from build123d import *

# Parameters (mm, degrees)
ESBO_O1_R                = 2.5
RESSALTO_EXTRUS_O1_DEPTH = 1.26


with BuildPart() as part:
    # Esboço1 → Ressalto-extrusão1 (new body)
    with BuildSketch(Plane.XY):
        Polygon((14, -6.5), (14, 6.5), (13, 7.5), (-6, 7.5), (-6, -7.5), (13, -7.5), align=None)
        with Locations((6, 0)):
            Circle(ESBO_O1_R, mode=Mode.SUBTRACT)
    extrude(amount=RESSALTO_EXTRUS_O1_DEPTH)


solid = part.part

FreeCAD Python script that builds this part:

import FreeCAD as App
import Part
import Sketcher
from FreeCAD import Vector
Q = App.Units.Quantity

doc = App.newDocument("Part")
body = doc.addObject("PartDesign::Body", "Body")

# Sketch on XY plane
sketch1 = doc.addObject("Sketcher::SketchObject", "Sketch")
body.addObject(sketch1)
sketch1.AttachmentSupport = (doc.XY_Plane, [""])
sketch1.MapMode = "FlatFace"
sketch1.addGeometry(Part.LineSegment(Vector(14, -6.5, 0), Vector(14, 6.5, 0)), False)
sketch1.addGeometry(Part.LineSegment(Vector(14, 6.5, 0), Vector(13, 7.5, 0)), False)
sketch1.addGeometry(Part.LineSegment(Vector(13, 7.5, 0), Vector(-6, 7.5, 0)), False)
sketch1.addGeometry(Part.LineSegment(Vector(-6, 7.5, 0), Vector(-6, -7.5, 0)), False)
sketch1.addGeometry(Part.LineSegment(Vector(-6, -7.5, 0), Vector(13, -7.5, 0)), False)
sketch1.addGeometry(Part.LineSegment(Vector(13, -7.5, 0), Vector(14, -6.5, 0)), False)
sketch1.addGeometry(Part.Circle(Vector(6, 0, 0), Vector(0, 0, 1), 2.5), False)
sketch1.addConstraint(Sketcher.Constraint("Coincident", 0, 2, 1, 1))
sketch1.addConstraint(Sketcher.Constraint("Coincident", 1, 2, 2, 1))
sketch1.addConstraint(Sketcher.Constraint("Coincident", 2, 2, 3, 1))
sketch1.addConstraint(Sketcher.Constraint("Coincident", 3, 2, 4, 1))
sketch1.addConstraint(Sketcher.Constraint("Coincident", 4, 2, 5, 1))
sketch1.addConstraint(Sketcher.Constraint("Coincident", 5, 2, 0, 1))
sketch1.addConstraint(Sketcher.Constraint("Vertical", 0))
sketch1.addConstraint(Sketcher.Constraint("Horizontal", 2))
sketch1.addConstraint(Sketcher.Constraint("Vertical", 3))
sketch1.addConstraint(Sketcher.Constraint("Horizontal", 4))
sketch1.addConstraint(Sketcher.Constraint("Symmetric", 1, 2, 4, 2, -1))
sketch1.addConstraint(Sketcher.Constraint("PointOnObject", 6, 3, -1))
sketch1.addConstraint(Sketcher.Constraint("Perpendicular", 1, 5))
sketch1.addConstraint(Sketcher.Constraint("Equal", 1, 5))
sketch1.addConstraint(Sketcher.Constraint("Diameter", 6, Q("5 mm")))
sketch1.addConstraint(Sketcher.Constraint("DistanceX", 2, 2, 2, 1, Q("19 mm")))
sketch1.addConstraint(Sketcher.Constraint("DistanceY", 0, 1, 0, 2, Q("13 mm")))
sketch1.addConstraint(Sketcher.Constraint("DistanceY", 3, 2, 3, 1, Q("15 mm")))
sketch1.addConstraint(Sketcher.Constraint("DistanceX", -1, 1, 6, 3, Q("6 mm")))
sketch1.addConstraint(Sketcher.Constraint("DistanceX", -1, 1, 0, 2, Q("14 mm")))
pad1 = doc.addObject("PartDesign::Pad", "Pad")
body.addObject(pad1)
pad1.Profile = sketch1
pad1.Length = 1.26

doc.recompute()
